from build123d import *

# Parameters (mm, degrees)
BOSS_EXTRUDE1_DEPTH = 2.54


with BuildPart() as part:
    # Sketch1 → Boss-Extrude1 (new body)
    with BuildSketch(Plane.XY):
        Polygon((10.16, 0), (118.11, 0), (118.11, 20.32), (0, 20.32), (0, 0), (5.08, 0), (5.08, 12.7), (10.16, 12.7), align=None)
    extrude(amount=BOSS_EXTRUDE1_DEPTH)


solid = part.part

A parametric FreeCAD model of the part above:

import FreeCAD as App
import Part
import Sketcher

V = App.Vector
Q = App.Units.Quantity


def add_polygon(sketch, points):
    """Adds a closed chain of lines whose ends are joined by coincident constraints."""
    first, n = sketch.GeometryCount, len(points)
    for a, b in zip(points, points[1:] + points[:1]):
        sketch.addGeometry(Part.LineSegment(App.Vector(*a, 0), App.Vector(*b, 0)), False)
    for i in range(n):
        sketch.addConstraint(Sketcher.Constraint("Coincident", first + i, 2, first + (i + 1) % n, 1))

doc = App.newDocument("Part")
params = doc.addObject("Spreadsheet::Sheet", "Params")
for row, (alias, value) in enumerate([
    ("sketch1_width", "0.2 in"),
    ("sketch1_height", "0.8 in"),
    ("sketch1_height2", "0.5 in"),
    ("sketch1_width2", "4.25 in"),
    ("pad1_length", "0.1 in"),
], start=1):
    params.set(f"A{row}", alias)
    params.set(f"B{row}", "=" + value)
    params.setAlias(f"B{row}", alias)

body = doc.addObject("PartDesign::Body", "Body")

# Sketch on XY plane
sketch1 = body.newObject("Sketcher::SketchObject", "Sketch")
sketch1.AttachmentSupport = (doc.getObject("XY_Plane"), [""])
sketch1.MapMode = "FlatFace"
add_polygon(sketch1, [(10, 0), (118, 0), (118, 20), (0, 20), (0, 0), (5, 0), (5, 13), (10, 13)])  # lines 0-7
sketch1.addConstraint(Sketcher.Constraint("Horizontal", 0))
sketch1.addConstraint(Sketcher.Constraint("Vertical", 1))
sketch1.addConstraint(Sketcher.Constraint("Horizontal", 2))
sketch1.addConstraint(Sketcher.Constraint("Vertical", 3))
sketch1.addConstraint(Sketcher.Constraint("Horizontal", 4))
sketch1.addConstraint(Sketcher.Constraint("Vertical", 5))
sketch1.addConstraint(Sketcher.Constraint("Horizontal", 6))
sketch1.addConstraint(Sketcher.Constraint("Vertical", 7))
sketch1.addConstraint(Sketcher.Constraint("Coincident", 3, 2, -1, 1))
sketch1.addConstraint(Sketcher.Constraint("PointOnObject", 0, 2, -1))
sketch1.addConstraint(Sketcher.Constraint("Equal", 4, 6))
sketch1.addConstraint(Sketcher.Constraint("DistanceX", 4, 1, 4, 2, Q("0.2 in")))
sketch1.addConstraint(Sketcher.Constraint("DistanceY", 1, 1, 1, 2, Q("0.8 in")))
sketch1.addConstraint(Sketcher.Constraint("DistanceY", 5, 1, 5, 2, Q("0.5 in")))
sketch1.addConstraint(Sketcher.Constraint("DistanceX", 0, 1, 0, 2, Q("4.25 in")))
sketch1.setExpression("Constraints[19]", "Params.sketch1_width")
sketch1.setExpression("Constraints[20]", "Params.sketch1_height")
sketch1.setExpression("Constraints[21]", "Params.sketch1_height2")
sketch1.setExpression("Constraints[22]", "Params.sketch1_width2")
pad1 = body.newObject("PartDesign::Pad", "Pad")
pad1.Profile = sketch1
pad1.setExpression("Length", "Params.pad1_length")

doc.recompute()
